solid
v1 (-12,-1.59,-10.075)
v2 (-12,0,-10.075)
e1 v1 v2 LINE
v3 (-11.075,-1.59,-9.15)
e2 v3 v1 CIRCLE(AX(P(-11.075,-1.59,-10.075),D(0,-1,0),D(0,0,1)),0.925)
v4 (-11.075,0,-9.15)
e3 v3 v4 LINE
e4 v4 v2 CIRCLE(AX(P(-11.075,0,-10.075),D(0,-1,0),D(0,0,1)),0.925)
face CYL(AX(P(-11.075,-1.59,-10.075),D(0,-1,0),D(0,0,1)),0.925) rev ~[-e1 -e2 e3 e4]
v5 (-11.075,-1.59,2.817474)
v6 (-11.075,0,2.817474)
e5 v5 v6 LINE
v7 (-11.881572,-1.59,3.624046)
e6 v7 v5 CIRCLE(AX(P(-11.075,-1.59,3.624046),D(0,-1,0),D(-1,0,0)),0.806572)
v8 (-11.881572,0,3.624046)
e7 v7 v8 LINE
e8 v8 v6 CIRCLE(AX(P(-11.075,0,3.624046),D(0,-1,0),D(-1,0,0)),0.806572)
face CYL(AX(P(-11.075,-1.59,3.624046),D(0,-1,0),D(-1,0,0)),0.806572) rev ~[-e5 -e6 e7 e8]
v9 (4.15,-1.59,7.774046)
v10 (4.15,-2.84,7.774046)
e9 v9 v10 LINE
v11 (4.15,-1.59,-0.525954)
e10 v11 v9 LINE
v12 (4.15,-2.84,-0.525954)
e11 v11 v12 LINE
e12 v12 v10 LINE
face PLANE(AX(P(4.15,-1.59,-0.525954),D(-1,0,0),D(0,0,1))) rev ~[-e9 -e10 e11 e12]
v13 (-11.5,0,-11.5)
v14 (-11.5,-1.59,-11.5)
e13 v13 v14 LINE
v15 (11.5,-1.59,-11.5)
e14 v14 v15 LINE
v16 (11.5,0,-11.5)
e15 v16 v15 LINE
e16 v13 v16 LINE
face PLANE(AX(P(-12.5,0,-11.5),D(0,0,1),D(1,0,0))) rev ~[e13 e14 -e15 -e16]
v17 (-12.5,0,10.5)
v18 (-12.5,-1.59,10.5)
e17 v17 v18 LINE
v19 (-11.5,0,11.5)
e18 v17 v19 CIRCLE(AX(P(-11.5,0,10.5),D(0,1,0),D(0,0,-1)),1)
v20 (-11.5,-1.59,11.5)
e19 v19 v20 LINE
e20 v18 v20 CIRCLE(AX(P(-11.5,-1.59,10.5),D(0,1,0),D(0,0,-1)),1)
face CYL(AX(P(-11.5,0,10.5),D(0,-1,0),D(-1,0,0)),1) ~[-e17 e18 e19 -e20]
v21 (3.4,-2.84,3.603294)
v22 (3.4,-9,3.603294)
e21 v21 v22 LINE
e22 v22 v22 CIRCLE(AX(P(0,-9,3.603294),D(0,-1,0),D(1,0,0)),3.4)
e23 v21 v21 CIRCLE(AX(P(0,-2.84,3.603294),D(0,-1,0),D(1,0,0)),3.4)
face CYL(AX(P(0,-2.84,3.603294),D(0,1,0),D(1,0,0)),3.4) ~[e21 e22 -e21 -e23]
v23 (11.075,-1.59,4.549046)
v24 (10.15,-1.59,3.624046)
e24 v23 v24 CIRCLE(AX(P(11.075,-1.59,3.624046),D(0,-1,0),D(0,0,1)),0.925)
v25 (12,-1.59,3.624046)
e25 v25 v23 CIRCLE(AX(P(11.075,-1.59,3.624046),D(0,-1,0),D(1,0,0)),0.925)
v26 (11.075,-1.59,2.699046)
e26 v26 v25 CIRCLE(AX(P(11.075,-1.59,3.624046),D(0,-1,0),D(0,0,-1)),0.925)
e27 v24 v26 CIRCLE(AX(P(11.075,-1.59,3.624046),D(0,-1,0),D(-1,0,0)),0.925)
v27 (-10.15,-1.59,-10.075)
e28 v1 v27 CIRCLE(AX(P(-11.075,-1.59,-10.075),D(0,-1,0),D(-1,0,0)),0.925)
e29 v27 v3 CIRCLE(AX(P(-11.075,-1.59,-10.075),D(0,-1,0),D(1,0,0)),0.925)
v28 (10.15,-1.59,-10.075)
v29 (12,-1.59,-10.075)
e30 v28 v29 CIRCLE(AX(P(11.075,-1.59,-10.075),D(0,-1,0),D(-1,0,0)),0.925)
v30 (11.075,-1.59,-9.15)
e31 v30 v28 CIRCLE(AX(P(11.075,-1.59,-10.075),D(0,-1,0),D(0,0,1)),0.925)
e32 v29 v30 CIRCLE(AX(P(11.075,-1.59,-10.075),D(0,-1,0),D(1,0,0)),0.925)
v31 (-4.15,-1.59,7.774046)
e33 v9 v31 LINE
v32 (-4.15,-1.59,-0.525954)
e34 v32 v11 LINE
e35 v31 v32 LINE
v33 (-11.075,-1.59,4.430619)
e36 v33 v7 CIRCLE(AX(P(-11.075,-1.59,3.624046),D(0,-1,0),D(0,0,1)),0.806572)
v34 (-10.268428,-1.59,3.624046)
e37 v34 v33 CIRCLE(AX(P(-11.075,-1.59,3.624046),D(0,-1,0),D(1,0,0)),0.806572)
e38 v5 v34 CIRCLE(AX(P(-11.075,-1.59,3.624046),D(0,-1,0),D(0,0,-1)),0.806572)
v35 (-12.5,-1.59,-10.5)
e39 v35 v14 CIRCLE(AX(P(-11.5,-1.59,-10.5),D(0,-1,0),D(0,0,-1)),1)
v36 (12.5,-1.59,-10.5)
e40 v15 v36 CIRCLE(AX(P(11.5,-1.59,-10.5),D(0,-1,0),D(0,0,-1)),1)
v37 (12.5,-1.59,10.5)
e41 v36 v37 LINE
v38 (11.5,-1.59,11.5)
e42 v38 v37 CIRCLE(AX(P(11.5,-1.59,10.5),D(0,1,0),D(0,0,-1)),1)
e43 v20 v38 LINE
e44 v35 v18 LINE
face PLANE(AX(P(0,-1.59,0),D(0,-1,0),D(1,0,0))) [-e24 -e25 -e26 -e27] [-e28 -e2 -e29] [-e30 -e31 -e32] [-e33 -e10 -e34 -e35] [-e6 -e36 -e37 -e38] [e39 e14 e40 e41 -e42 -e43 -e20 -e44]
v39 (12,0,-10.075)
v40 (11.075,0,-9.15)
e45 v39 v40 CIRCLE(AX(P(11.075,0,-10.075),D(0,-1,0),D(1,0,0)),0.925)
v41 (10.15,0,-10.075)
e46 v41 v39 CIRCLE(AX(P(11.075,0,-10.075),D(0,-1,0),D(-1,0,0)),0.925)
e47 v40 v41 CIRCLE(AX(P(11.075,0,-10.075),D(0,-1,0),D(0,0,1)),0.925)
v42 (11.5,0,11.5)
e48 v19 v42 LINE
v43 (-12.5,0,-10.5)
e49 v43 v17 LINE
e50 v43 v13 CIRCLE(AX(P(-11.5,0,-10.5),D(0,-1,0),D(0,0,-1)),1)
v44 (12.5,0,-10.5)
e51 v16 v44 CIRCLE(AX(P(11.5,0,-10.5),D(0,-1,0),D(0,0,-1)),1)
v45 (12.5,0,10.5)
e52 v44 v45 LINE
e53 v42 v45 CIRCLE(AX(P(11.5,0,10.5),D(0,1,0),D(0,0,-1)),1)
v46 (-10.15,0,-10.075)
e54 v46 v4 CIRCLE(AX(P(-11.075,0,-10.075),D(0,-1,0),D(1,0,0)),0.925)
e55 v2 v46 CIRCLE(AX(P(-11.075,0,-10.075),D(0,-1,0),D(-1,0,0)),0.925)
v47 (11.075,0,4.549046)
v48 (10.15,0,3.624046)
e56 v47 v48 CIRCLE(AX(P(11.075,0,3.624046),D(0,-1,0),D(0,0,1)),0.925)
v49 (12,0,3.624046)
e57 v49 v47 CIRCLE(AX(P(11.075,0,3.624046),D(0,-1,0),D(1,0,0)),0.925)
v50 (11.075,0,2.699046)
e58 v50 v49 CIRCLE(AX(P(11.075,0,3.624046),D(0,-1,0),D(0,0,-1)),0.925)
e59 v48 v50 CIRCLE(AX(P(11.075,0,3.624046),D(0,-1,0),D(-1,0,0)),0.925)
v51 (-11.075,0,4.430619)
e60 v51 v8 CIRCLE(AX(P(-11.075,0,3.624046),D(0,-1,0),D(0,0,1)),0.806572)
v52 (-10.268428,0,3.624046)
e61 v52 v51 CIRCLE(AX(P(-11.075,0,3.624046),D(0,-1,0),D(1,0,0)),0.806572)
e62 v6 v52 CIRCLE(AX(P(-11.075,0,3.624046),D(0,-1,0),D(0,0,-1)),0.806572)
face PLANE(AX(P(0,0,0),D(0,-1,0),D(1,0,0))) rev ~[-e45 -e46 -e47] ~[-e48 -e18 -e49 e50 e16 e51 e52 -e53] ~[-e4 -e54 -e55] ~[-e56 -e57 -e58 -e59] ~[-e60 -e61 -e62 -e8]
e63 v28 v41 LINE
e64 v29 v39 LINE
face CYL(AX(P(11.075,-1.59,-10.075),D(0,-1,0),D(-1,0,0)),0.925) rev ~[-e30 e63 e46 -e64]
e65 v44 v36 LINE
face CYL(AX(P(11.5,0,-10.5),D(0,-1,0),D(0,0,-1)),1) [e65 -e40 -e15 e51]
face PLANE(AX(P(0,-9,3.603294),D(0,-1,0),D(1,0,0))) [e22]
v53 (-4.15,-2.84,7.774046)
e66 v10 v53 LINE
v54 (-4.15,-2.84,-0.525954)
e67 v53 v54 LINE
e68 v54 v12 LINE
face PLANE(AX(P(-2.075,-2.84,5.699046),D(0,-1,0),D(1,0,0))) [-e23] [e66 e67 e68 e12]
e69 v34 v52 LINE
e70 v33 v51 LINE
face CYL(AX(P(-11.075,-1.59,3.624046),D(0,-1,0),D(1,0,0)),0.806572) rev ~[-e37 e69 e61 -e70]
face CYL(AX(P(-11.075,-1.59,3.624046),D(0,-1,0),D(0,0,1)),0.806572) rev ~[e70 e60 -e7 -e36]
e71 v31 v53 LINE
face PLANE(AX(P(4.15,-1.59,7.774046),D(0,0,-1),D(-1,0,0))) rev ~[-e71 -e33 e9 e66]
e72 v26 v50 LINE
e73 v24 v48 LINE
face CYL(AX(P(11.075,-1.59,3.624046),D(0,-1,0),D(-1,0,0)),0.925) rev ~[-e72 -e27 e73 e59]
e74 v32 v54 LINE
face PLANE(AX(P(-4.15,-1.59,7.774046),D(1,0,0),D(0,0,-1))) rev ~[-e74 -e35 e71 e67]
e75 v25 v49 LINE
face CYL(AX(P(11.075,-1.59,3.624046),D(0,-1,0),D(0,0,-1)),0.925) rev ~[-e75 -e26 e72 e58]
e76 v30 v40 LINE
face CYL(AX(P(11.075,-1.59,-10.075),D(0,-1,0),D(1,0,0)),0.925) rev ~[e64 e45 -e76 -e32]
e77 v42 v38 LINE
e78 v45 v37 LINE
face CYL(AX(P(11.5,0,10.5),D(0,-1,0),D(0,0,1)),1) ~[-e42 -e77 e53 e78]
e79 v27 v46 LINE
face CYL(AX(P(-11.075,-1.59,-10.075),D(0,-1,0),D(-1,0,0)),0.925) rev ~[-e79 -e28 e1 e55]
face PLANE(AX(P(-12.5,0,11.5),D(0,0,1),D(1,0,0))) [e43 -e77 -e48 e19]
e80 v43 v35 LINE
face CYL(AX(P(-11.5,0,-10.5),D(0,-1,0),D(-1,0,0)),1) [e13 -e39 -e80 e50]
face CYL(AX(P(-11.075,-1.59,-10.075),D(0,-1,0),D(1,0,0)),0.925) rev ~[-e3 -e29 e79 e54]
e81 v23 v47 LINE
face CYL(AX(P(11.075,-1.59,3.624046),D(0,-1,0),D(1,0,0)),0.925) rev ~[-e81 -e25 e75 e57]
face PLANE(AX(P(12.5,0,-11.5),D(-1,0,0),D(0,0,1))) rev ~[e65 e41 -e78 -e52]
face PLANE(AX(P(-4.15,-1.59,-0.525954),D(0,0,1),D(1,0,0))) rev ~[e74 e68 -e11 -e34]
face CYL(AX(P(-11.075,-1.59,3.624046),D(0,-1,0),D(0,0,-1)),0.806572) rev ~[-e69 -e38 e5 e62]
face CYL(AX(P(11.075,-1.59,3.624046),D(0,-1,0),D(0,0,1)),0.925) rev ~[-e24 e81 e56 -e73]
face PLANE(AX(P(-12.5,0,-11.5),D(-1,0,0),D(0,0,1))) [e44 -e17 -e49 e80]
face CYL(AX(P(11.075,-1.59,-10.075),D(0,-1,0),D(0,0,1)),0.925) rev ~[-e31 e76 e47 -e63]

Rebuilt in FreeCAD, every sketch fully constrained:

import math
import FreeCAD as App
import Part
import Sketcher
from FreeCAD import Vector


def edges_at(feature, points):
    """Names of the edges that pass closest to the given points."""
    edges = feature.Shape.Edges
    near = lambda p: min(range(len(edges)), key=lambda i: edges[i].distToShape(Part.Vertex(*p))[0])
    return sorted({f"Edge{near(p) + 1}" for p in points})

doc = App.newDocument("Part")
body = doc.addObject("PartDesign::Body", "Body")

# Sketch on XZ plane
sketch1 = body.newObject("Sketcher::SketchObject", "Sketch")
sketch1.AttachmentSupport = (doc.getObject("XZ_Plane"), [""])
sketch1.MapMode = "FlatFace"
sketch1.addGeometry([
    Part.LineSegment(Vector(-12.5, 11.5, 0), Vector(-12.5, -11.5, 0)),
    Part.LineSegment(Vector(-12.5, -11.5, 0), Vector(12.5, -11.5, 0)),
    Part.LineSegment(Vector(12.5, -11.5, 0), Vector(12.5, 11.5, 0)),
    Part.LineSegment(Vector(12.5, 11.5, 0), Vector(-12.5, 11.5, 0)),
], False)
sketch1.addConstraint([
    Sketcher.Constraint("Coincident", 0, 2, 1, 1),
    Sketcher.Constraint("Coincident", 1, 2, 2, 1),
    Sketcher.Constraint("Coincident", 2, 2, 3, 1),
    Sketcher.Constraint("Coincident", 3, 2, 0, 1),
    Sketcher.Constraint("Vertical", 0),
    Sketcher.Constraint("Horizontal", 1),
    Sketcher.Constraint("Vertical", 2),
    Sketcher.Constraint("Horizontal", 3),
    Sketcher.Constraint("Symmetric", 0, 2, 2, 2, -1, 1),
    Sketcher.Constraint("DistanceX", 1, 1, 1, 2, 25.0),
    Sketcher.Constraint("DistanceY", 0, 2, 0, 1, 23.0),
])
pad1 = body.newObject("PartDesign::Pad", "Pad")
pad1.Profile = sketch1
pad1.Length = 1.59

# Sketch on XZ plane
sketch2 = body.newObject("Sketcher::SketchObject", "Sketch001")
sketch2.AttachmentSupport = (doc.getObject("XZ_Plane"), [""])
sketch2.MapMode = "FlatFace"
sketch2.AttachmentOffset = App.Placement(Vector(0, 0, 1.59), App.Rotation())
sketch2.addGeometry([
    Part.ArcOfCircle(Part.Circle(Vector(-11.075, 3.624046, 0), Vector(0, 0, 1), 0.806572), math.radians(-90), math.radians(0)),  # 0
    Part.ArcOfCircle(Part.Circle(Vector(-11.075, 3.624046, 0), Vector(0, 0, 1), 0.806572), math.radians(0), math.radians(90)),  # 1
    Part.ArcOfCircle(Part.Circle(Vector(-11.075, 3.624046, 0), Vector(0, 0, 1), 0.806572), math.radians(90), math.radians(180)),  # 2
    Part.ArcOfCircle(Part.Circle(Vector(-11.075, 3.624046, 0), Vector(0, 0, 1), 0.806572), math.radians(180), math.radians(270)),  # 3
    Part.ArcOfCircle(Part.Circle(Vector(-11.075, -10.075, 0), Vector(0, 0, 1), 0.925), math.radians(90), math.radians(180)),  # 4
    Part.ArcOfCircle(Part.Circle(Vector(-11.075, -10.075, 0), Vector(0, 0, 1), 0.925), math.radians(180), math.radians(360)),  # 5
    Part.ArcOfCircle(Part.Circle(Vector(-11.075, -10.075, 0), Vector(0, 0, 1), 0.925), math.radians(0), math.radians(90)),  # 6
    Part.ArcOfCircle(Part.Circle(Vector(11.075, -10.075, 0), Vector(0, 0, 1), 0.925), math.radians(180), math.radians(360)),  # 7
    Part.ArcOfCircle(Part.Circle(Vector(11.075, -10.075, 0), Vector(0, 0, 1), 0.925), math.radians(0), math.radians(90)),  # 8
    Part.ArcOfCircle(Part.Circle(Vector(11.075, -10.075, 0), Vector(0, 0, 1), 0.925), math.radians(90), math.radians(180)),  # 9
    Part.ArcOfCircle(Part.Circle(Vector(11.075, 3.624046, 0), Vector(0, 0, 1), 0.925), math.radians(180), math.radians(270)),  # 10
    Part.ArcOfCircle(Part.Circle(Vector(11.075, 3.624046, 0), Vector(0, 0, 1), 0.925), math.radians(-90), math.radians(0)),  # 11
    Part.ArcOfCircle(Part.Circle(Vector(11.075, 3.624046, 0), Vector(0, 0, 1), 0.925), math.radians(0), math.radians(90)),  # 12
    Part.ArcOfCircle(Part.Circle(Vector(11.075, 3.624046, 0), Vector(0, 0, 1), 0.925), math.radians(90), math.radians(180)),  # 13
], False)
sketch2.addConstraint([
    Sketcher.Constraint("Tangent", 0, 2, 1, 1),
    Sketcher.Constraint("Tangent", 1, 2, 2, 1),
    Sketcher.Constraint("Tangent", 2, 2, 3, 1),
    Sketcher.Constraint("Tangent", 3, 2, 0, 1),
    Sketcher.Constraint("Tangent", 4, 2, 5, 1),
    Sketcher.Constraint("Tangent", 5, 2, 6, 1),
    Sketcher.Constraint("Tangent", 6, 2, 4, 1),
    Sketcher.Constraint("Tangent", 7, 2, 8, 1),
    Sketcher.Constraint("Tangent", 8, 2, 9, 1),
    Sketcher.Constraint("Tangent", 9, 2, 7, 1),
    Sketcher.Constraint("Tangent", 10, 2, 11, 1),
    Sketcher.Constraint("Tangent", 11, 2, 12, 1),
    Sketcher.Constraint("Tangent", 12, 2, 13, 1),
    Sketcher.Constraint("Tangent", 13, 2, 10, 1),
    Sketcher.Constraint("Equal", 0, 1),
    Sketcher.Constraint("Equal", 6, 7),
    Sketcher.Constraint("Equal", 9, 10),
    Sketcher.Constraint("Equal", 10, 11),
    Sketcher.Constraint("Symmetric", 4, 3, 7, 3, -2),
    Sketcher.Constraint("Symmetric", 0, 3, 10, 3, -2),
    Sketcher.Constraint("Horizontal", 13, 3, 0, 2),
    Sketcher.Constraint("Horizontal", 0, 2, 2, 2),
    Sketcher.Constraint("Horizontal", 9, 3, 4, 2),
    Sketcher.Constraint("Horizontal", 4, 2, 5, 2),
    Sketcher.Constraint("Horizontal", 5, 2, 7, 2),
    Sketcher.Constraint("Horizontal", 7, 2, 9, 2),
    Sketcher.Constraint("Horizontal", 2, 2, 11, 2),
    Sketcher.Constraint("Horizontal", 11, 2, 13, 2),
    Sketcher.Constraint("Vertical", 3, 3, 4, 3),
    Sketcher.Constraint("Vertical", 6, 3, 1, 2),
    Sketcher.Constraint("Vertical", 1, 2, 3, 2),
    Sketcher.Constraint("Vertical", 3, 2, 6, 2),
    Sketcher.Constraint("Vertical", 13, 3, 8, 2),
    Sketcher.Constraint("Vertical", 8, 2, 10, 2),
    Sketcher.Constraint("Vertical", 10, 2, 12, 2),
    Sketcher.Constraint("DistanceX", 4, 2, -1, 1, 12.0),
    Sketcher.Constraint("Radius", 4, 0.925),
    Sketcher.Constraint("DistanceY", 6, 2, -1, 1, 9.15),
    Sketcher.Constraint("Radius", 0, 0.806572),
    Sketcher.Constraint("DistanceY", -1, 1, 1, 2, 4.430619),
])
pocket1 = body.newObject("PartDesign::Pocket", "Pocket")
pocket1.Profile = sketch2
pocket1.Length = 25

# Sketch on XZ plane
sketch3 = body.newObject("Sketcher::SketchObject", "Sketch002")
sketch3.AttachmentSupport = (doc.getObject("XZ_Plane"), [""])
sketch3.MapMode = "FlatFace"
sketch3.AttachmentOffset = App.Placement(Vector(0, 0, 1.59), App.Rotation())
sketch3.addGeometry([
    Part.LineSegment(Vector(-4.15, 7.774046, 0), Vector(-4.15, -0.525954, 0)),
    Part.LineSegment(Vector(-4.15, -0.525954, 0), Vector(4.15, -0.525954, 0)),
    Part.LineSegment(Vector(4.15, -0.525954, 0), Vector(4.15, 7.774046, 0)),
    Part.LineSegment(Vector(4.15, 7.774046, 0), Vector(-4.15, 7.774046, 0)),
], False)
sketch3.addConstraint([
    Sketcher.Constraint("Coincident", 0, 2, 1, 1),
    Sketcher.Constraint("Coincident", 1, 2, 2, 1),
    Sketcher.Constraint("Coincident", 2, 2, 3, 1),
    Sketcher.Constraint("Coincident", 3, 2, 0, 1),
    Sketcher.Constraint("Vertical", 0),
    Sketcher.Constraint("Horizontal", 1),
    Sketcher.Constraint("Vertical", 2),
    Sketcher.Constraint("Horizontal", 3),
    Sketcher.Constraint("Equal", 3, 0),
    Sketcher.Constraint("DistanceX", 1, 1, 1, 2, 8.3),
    Sketcher.Constraint("DistanceX", 0, 2, -1, 1, 4.15),
    Sketcher.Constraint("DistanceY", 0, 2, -1, 1, 0.525954),
])
pad2 = body.newObject("PartDesign::Pad", "Pad001")
pad2.Profile = sketch3
pad2.Length = 1.25

# Sketch on XZ plane
sketch4 = body.newObject("Sketcher::SketchObject", "Sketch003")
sketch4.AttachmentSupport = (doc.getObject("XZ_Plane"), [""])
sketch4.MapMode = "FlatFace"
sketch4.AttachmentOffset = App.Placement(Vector(0, 0, 2.84), App.Rotation())
sketch4.addGeometry(Part.Circle(Vector(0, 3.603294, 0), Vector(0, 0, 1), 3.4), False)
sketch4.addConstraint([
    Sketcher.Constraint("PointOnObject", 0, 3, -2),
    Sketcher.Constraint("Diameter", 0, 6.8),
    Sketcher.Constraint("DistanceY", -1, 1, 0, 3, 3.603294),
])
pad3 = body.newObject("PartDesign::Pad", "Pad002")
pad3.Profile = sketch4
pad3.Length = 6.16
doc.recompute()

fillet = body.newObject("PartDesign::Fillet", "Fillet")
fillet.Base = (pad3, edges_at(pad3, [
    (-12.5, -0.795, -11.5),
    (-12.5, -0.795, 11.5),
    (12.5, -0.795, -11.5),
    (12.5, -0.795, 11.5),
]))
fillet.Radius = 1

doc.recompute()
